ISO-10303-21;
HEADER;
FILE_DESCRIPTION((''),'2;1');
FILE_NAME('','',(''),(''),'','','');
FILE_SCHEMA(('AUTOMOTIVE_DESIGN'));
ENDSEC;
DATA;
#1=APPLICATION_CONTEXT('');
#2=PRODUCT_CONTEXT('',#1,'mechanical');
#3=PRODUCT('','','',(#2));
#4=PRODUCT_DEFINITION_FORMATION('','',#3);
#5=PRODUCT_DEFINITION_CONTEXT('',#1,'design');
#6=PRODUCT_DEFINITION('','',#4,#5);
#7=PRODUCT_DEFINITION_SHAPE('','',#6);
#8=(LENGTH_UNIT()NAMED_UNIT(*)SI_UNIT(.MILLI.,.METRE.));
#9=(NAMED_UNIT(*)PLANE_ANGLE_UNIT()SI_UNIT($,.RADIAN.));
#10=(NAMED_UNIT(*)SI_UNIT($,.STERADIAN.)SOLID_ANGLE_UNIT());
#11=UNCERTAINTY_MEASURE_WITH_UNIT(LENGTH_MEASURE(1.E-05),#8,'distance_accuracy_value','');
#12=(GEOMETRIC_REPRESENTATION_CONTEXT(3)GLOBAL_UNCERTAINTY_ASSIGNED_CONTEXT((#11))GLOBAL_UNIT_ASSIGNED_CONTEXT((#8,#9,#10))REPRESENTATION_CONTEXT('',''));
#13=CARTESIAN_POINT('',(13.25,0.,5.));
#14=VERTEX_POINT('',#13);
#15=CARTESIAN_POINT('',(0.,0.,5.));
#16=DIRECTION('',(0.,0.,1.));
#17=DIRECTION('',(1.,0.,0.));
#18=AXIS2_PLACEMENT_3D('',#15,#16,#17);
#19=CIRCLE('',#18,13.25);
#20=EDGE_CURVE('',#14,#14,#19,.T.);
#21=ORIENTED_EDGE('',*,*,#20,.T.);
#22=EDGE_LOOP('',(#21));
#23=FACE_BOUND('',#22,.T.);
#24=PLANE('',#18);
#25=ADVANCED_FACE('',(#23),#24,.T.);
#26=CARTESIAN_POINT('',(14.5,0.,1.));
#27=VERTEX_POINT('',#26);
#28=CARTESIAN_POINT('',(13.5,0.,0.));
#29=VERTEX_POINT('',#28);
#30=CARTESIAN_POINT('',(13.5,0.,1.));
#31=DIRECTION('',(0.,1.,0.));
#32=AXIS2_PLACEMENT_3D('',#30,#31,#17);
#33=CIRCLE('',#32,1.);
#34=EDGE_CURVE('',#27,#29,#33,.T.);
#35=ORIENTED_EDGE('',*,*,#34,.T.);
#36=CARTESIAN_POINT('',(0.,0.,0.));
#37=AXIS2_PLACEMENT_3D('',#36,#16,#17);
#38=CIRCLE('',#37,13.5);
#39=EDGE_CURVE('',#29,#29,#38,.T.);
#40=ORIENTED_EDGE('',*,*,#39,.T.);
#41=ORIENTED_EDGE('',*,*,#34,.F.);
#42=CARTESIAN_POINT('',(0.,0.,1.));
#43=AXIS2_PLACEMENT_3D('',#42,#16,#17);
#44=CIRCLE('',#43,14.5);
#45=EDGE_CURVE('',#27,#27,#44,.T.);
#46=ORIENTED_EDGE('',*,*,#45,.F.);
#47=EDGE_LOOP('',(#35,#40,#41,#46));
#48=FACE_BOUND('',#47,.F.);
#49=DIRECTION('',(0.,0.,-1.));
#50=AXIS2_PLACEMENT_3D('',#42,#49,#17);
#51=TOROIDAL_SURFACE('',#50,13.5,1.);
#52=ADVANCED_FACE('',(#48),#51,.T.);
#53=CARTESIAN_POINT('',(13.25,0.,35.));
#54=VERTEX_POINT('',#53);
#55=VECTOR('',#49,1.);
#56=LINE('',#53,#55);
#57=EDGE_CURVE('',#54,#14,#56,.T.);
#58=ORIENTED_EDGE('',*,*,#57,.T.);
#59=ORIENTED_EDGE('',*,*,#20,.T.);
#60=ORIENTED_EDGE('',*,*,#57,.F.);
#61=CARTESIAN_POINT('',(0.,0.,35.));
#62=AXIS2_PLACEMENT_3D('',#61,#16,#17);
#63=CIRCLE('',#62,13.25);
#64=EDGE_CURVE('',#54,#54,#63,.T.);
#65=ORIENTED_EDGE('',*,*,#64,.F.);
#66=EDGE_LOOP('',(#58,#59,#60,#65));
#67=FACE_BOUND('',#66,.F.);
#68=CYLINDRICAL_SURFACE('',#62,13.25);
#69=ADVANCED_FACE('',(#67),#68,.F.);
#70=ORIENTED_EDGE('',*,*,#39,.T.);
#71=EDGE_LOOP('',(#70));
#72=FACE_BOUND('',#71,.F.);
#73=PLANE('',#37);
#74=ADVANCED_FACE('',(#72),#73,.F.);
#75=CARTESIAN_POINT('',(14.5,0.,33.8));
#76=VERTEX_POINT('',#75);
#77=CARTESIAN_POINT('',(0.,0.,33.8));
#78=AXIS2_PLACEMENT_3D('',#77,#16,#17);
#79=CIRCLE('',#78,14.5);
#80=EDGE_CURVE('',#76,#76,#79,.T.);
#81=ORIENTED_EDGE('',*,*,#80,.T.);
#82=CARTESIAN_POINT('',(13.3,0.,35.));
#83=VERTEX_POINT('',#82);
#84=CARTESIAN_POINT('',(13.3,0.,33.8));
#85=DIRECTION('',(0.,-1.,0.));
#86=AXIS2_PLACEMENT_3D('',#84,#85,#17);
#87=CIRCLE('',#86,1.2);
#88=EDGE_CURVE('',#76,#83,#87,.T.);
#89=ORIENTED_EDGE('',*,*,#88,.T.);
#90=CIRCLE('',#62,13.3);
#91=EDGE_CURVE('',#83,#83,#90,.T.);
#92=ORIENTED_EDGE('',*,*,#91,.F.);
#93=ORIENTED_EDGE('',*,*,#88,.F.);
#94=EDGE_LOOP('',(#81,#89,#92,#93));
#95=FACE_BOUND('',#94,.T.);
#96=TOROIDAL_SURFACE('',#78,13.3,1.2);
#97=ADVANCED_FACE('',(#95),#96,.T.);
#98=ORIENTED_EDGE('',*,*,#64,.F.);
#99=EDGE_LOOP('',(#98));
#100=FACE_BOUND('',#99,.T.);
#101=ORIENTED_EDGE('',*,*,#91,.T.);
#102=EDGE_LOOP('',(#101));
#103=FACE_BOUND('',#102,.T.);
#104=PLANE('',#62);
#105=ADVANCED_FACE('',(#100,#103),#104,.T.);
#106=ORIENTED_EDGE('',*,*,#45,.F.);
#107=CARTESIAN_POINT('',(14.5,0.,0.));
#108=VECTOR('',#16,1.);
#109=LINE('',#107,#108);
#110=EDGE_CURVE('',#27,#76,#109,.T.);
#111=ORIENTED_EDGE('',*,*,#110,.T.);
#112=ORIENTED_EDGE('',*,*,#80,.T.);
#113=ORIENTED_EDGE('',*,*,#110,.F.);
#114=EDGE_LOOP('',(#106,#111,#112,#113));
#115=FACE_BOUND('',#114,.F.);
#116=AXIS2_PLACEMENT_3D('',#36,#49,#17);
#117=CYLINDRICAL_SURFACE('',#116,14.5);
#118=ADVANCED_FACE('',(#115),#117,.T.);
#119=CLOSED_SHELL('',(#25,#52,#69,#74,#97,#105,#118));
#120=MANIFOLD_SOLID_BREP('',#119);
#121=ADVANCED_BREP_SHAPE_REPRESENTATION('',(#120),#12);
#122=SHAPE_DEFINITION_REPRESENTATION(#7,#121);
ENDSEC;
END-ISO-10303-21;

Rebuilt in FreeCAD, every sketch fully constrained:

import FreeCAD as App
import Part
import Sketcher


def edges_at(feature, points):
    """Names of the edges that pass closest to the given points."""
    edges = feature.Shape.Edges
    near = lambda p: min(range(len(edges)), key=lambda i: edges[i].distToShape(Part.Vertex(*p))[0])
    return sorted({f"Edge{near(p) + 1}" for p in points})

doc = App.newDocument("Part")
body = doc.addObject("PartDesign::Body", "Body")

# Sketch on XY plane
sketch1 = doc.addObject("Sketcher::SketchObject", "Sketch")
body.addObject(sketch1)
sketch1.AttachmentSupport = (doc.XY_Plane, [""])
sketch1.MapMode = "FlatFace"
sketch1.addGeometry(Part.Circle(App.Vector(0, 0, 0), App.Vector(0, 0, 1), 14), False)
sketch1.addConstraint([
    Sketcher.Constraint("Coincident", 0, 3, -1, 1),
    Sketcher.Constraint("Diameter", 0, 29.0),
])
pad1 = doc.addObject("PartDesign::Pad", "Pad")
body.addObject(pad1)
pad1.Profile = sketch1
pad1.Length = 35

# Sketch on XY plane
sketch2 = doc.addObject("Sketcher::SketchObject", "Sketch001")
body.addObject(sketch2)
sketch2.AttachmentSupport = (doc.XY_Plane, [""])
sketch2.MapMode = "FlatFace"
sketch2.AttachmentOffset = App.Placement(App.Vector(0, 0, 35), App.Rotation())
sketch2.addGeometry(Part.Circle(App.Vector(0, 0, 0), App.Vector(0, 0, 1), 13), False)
sketch2.addConstraint([
    Sketcher.Constraint("Coincident", 0, 3, -1, 1),
    Sketcher.Constraint("Diameter", 0, 26.5),
])
pocket1 = doc.addObject("PartDesign::Pocket", "Pocket")
body.addObject(pocket1)
pocket1.Profile = sketch2
pocket1.Length = 30
doc.recompute()

fillet = doc.addObject("PartDesign::Fillet", "Fillet")
body.addObject(fillet)
fillet.Base = (pocket1, edges_at(pocket1, [(-14.5, 0, 0)]))
fillet.Radius = 1
doc.recompute()

fillet2 = doc.addObject("PartDesign::Fillet", "Fillet001")
body.addObject(fillet2)
fillet2.Base = (fillet, edges_at(fillet, [(-14.5, 0, 35)]))
fillet2.Radius = 1.2

doc.recompute()
